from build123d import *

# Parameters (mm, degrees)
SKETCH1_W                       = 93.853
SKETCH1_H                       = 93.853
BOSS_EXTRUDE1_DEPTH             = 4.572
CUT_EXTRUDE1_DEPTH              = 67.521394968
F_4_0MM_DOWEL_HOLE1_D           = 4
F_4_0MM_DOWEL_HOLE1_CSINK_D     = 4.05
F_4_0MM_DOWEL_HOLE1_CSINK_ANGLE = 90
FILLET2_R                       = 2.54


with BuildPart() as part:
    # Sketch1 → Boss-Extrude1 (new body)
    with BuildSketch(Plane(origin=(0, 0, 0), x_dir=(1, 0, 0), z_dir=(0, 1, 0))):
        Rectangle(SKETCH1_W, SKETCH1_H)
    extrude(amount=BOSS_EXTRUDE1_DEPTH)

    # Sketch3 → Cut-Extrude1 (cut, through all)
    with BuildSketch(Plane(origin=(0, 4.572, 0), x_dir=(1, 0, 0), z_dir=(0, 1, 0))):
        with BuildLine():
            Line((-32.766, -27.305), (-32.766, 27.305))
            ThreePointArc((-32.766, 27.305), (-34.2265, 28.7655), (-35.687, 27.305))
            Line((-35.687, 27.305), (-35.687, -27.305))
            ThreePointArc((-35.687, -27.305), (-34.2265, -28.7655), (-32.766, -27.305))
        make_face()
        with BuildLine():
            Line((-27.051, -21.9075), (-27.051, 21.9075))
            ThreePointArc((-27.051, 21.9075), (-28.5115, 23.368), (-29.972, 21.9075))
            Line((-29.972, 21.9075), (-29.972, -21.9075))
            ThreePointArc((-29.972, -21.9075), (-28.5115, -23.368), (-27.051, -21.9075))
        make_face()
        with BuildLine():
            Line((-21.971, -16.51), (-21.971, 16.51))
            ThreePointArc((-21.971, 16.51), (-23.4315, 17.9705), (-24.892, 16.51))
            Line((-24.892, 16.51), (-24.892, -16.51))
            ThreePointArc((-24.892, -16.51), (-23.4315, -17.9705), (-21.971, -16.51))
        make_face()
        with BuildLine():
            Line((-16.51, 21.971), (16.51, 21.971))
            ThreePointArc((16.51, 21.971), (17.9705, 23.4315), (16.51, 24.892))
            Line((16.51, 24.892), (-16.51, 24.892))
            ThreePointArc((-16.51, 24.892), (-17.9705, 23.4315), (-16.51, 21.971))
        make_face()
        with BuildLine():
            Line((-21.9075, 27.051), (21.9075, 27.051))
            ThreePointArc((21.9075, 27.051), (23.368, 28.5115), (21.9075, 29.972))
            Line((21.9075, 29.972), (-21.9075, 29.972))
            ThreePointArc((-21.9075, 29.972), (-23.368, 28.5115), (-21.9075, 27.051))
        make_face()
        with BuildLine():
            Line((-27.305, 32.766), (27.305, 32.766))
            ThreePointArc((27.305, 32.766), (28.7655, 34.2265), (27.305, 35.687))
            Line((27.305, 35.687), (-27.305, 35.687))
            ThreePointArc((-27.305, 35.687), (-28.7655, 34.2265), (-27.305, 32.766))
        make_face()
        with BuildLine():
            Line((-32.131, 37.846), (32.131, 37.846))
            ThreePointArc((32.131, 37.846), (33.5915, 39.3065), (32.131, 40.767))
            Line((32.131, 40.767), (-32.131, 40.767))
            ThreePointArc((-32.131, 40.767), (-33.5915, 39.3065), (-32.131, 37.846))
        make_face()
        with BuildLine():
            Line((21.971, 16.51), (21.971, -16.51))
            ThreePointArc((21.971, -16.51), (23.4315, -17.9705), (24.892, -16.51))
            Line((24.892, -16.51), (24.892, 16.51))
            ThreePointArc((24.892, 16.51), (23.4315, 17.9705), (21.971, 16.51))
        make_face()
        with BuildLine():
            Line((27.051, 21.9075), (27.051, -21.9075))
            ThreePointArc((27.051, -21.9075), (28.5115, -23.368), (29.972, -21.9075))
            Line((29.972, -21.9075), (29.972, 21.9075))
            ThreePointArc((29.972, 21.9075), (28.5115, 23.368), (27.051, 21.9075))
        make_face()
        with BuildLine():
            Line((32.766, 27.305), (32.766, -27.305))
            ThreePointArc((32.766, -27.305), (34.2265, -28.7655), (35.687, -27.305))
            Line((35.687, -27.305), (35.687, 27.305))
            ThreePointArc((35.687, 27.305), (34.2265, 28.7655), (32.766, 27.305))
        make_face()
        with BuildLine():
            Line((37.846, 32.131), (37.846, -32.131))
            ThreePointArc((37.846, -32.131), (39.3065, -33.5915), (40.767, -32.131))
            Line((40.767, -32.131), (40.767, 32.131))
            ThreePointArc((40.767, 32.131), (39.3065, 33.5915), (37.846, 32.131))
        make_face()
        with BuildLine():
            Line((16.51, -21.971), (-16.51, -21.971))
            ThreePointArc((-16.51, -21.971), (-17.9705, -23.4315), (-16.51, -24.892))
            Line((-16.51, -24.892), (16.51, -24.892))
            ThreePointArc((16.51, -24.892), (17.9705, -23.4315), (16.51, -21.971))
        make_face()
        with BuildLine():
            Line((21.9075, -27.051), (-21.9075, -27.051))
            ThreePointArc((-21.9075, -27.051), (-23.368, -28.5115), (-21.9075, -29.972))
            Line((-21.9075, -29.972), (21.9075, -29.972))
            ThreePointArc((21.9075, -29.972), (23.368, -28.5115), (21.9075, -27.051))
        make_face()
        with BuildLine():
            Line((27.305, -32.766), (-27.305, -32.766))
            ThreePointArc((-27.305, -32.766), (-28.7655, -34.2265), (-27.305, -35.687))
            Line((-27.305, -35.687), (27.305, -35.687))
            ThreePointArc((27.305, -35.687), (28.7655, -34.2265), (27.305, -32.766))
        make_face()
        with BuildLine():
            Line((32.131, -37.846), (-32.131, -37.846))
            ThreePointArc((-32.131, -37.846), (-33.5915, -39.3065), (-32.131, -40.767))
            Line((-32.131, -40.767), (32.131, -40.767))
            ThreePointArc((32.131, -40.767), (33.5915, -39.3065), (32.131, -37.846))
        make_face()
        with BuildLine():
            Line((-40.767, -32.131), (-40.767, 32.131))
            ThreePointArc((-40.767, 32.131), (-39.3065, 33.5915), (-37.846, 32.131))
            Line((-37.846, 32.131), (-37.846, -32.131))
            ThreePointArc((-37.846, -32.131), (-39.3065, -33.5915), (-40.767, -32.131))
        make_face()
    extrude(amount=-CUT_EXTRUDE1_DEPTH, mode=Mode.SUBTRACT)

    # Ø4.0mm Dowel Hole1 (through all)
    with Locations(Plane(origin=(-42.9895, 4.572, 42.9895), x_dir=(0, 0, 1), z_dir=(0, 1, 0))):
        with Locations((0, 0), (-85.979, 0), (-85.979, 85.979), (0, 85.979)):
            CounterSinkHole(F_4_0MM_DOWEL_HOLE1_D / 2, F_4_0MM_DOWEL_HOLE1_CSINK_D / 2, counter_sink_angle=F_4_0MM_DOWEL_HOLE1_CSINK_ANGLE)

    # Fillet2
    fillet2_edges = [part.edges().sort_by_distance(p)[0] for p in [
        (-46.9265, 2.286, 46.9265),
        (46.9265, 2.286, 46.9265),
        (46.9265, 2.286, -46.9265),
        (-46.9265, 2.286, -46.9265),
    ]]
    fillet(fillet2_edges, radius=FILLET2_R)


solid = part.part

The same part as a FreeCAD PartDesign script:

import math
import FreeCAD as App
import Part
import Sketcher
from FreeCAD import Vector
Q = App.Units.Quantity


def edges_at(feature, points):
    """Names of the edges that pass closest to the given points."""
    edges = feature.Shape.Edges
    near = lambda p: min(range(len(edges)), key=lambda i: edges[i].distToShape(Part.Vertex(*p))[0])
    return sorted({f"Edge{near(p) + 1}" for p in points})


def add_polygon(sketch, points):
    """Adds a closed chain of lines whose ends are joined by coincident constraints."""
    first, n = sketch.GeometryCount, len(points)
    for a, b in zip(points, points[1:] + points[:1]):
        sketch.addGeometry(Part.LineSegment(App.Vector(*a, 0), App.Vector(*b, 0)), False)
    for i in range(n):
        sketch.addConstraint(Sketcher.Constraint("Coincident", first + i, 2, first + (i + 1) % n, 1))

doc = App.newDocument("Part")
body = doc.addObject("PartDesign::Body", "Body")

# Sketch on XZ plane
sketch1 = body.newObject("Sketcher::SketchObject", "Sketch")
sketch1.AttachmentSupport = (doc.getObject("XZ_Plane"), [""])
sketch1.MapMode = "FlatFace"
add_polygon(sketch1, [(-47, -47), (-47, 47), (47, 47), (47, -47)])  # lines 0-3
sketch1.addConstraint([
    Sketcher.Constraint("Vertical", 0),
    Sketcher.Constraint("Horizontal", 1),
    Sketcher.Constraint("Vertical", 2),
    Sketcher.Constraint("Horizontal", 3),
    Sketcher.Constraint("Symmetric", 0, 2, 2, 2, -1, 1),
    Sketcher.Constraint("Equal", 3, 0),
    Sketcher.Constraint("DistanceX", 1, 1, 1, 2, Q("3.695 in")),
])
pad1 = body.newObject("PartDesign::Pad", "Pad")
pad1.Profile = sketch1
pad1.Length = Q("0.18 in")
pad1.Reversed = True

# Sketch on XZ plane
sketch2 = body.newObject("Sketcher::SketchObject", "Sketch001")
sketch2.AttachmentSupport = (doc.getObject("XZ_Plane"), [""])
sketch2.MapMode = "FlatFace"
sketch2.AttachmentOffset = App.Placement(Vector(0, 0, -0.18 * 25.4), App.Rotation())
sketch2.addGeometry([
    Part.LineSegment(Vector(-32.8, 27.3, 0), Vector(-32.8, -27.3, 0)),  # 0
    Part.ArcOfCircle(Part.Circle(Vector(-34.2, -27.3, 0), Vector(0, 0, 1), 1.5), math.radians(180), math.radians(360)),  # 1
    Part.LineSegment(Vector(-35.7, -27.3, 0), Vector(-35.7, 27.3, 0)),  # 2
    Part.ArcOfCircle(Part.Circle(Vector(-34.2, 27.3, 0), Vector(0, 0, 1), 1.5), math.radians(0), math.radians(180)),  # 3
    Part.LineSegment(Vector(-27.1, 21.9, 0), Vector(-27.1, -21.9, 0)),  # 4
    Part.ArcOfCircle(Part.Circle(Vector(-28.5, -21.9, 0), Vector(0, 0, 1), 1.5), math.radians(180), math.radians(360)),  # 5
    Part.LineSegment(Vector(-30, -21.9, 0), Vector(-30, 21.9, 0)),  # 6
    Part.ArcOfCircle(Part.Circle(Vector(-28.5, 21.9, 0), Vector(0, 0, 1), 1.5), math.radians(0), math.radians(180)),  # 7
    Part.LineSegment(Vector(-22, 16.5, 0), Vector(-22, -16.5, 0)),  # 8
    Part.ArcOfCircle(Part.Circle(Vector(-23.4, -16.5, 0), Vector(0, 0, 1), 1.5), math.radians(180), math.radians(360)),  # 9
    Part.LineSegment(Vector(-24.9, -16.5, 0), Vector(-24.9, 16.5, 0)),  # 10
    Part.ArcOfCircle(Part.Circle(Vector(-23.4, 16.5, 0), Vector(0, 0, 1), 1.5), math.radians(0), math.radians(180)),  # 11
    Part.LineSegment(Vector(-16.5, -22, 0), Vector(16.5, -22, 0)),  # 12
    Part.ArcOfCircle(Part.Circle(Vector(16.5, -23.4, 0), Vector(0, 0, 1), 1.5), math.radians(-90), math.radians(90)),  # 13
    Part.LineSegment(Vector(16.5, -24.9, 0), Vector(-16.5, -24.9, 0)),  # 14
    Part.ArcOfCircle(Part.Circle(Vector(-16.5, -23.4, 0), Vector(0, 0, 1), 1.5), math.radians(90), math.radians(270)),  # 15
    Part.LineSegment(Vector(-21.9, -27.1, 0), Vector(21.9, -27.1, 0)),  # 16
    Part.ArcOfCircle(Part.Circle(Vector(21.9, -28.5, 0), Vector(0, 0, 1), 1.5), math.radians(-90), math.radians(90)),  # 17
    Part.LineSegment(Vector(21.9, -30, 0), Vector(-21.9, -30, 0)),  # 18
    Part.ArcOfCircle(Part.Circle(Vector(-21.9, -28.5, 0), Vector(0, 0, 1), 1.5), math.radians(90), math.radians(270)),  # 19
    Part.LineSegment(Vector(-27.3, -32.8, 0), Vector(27.3, -32.8, 0)),  # 20
    Part.ArcOfCircle(Part.Circle(Vector(27.3, -34.2, 0), Vector(0, 0, 1), 1.5), math.radians(-90), math.radians(90)),  # 21
    Part.LineSegment(Vector(27.3, -35.7, 0), Vector(-27.3, -35.7, 0)),  # 22
    Part.ArcOfCircle(Part.Circle(Vector(-27.3, -34.2, 0), Vector(0, 0, 1), 1.5), math.radians(90), math.radians(270)),  # 23
    Part.LineSegment(Vector(-32.1, -37.8, 0), Vector(32.1, -37.8, 0)),  # 24
    Part.ArcOfCircle(Part.Circle(Vector(32.1, -39.3, 0), Vector(0, 0, 1), 1.5), math.radians(-90), math.radians(90)),  # 25
    Part.LineSegment(Vector(32.1, -40.8, 0), Vector(-32.1, -40.8, 0)),  # 26
    Part.ArcOfCircle(Part.Circle(Vector(-32.1, -39.3, 0), Vector(0, 0, 1), 1.5), math.radians(90), math.radians(270)),  # 27
    Part.LineSegment(Vector(22, -16.5, 0), Vector(22, 16.5, 0)),  # 28
    Part.ArcOfCircle(Part.Circle(Vector(23.4, 16.5, 0), Vector(0, 0, 1), 1.5), math.radians(0), math.radians(180)),  # 29
    Part.LineSegment(Vector(24.9, 16.5, 0), Vector(24.9, -16.5, 0)),  # 30
    Part.ArcOfCircle(Part.Circle(Vector(23.4, -16.5, 0), Vector(0, 0, 1), 1.5), math.radians(180), math.radians(360)),  # 31
    Part.LineSegment(Vector(27.1, -21.9, 0), Vector(27.1, 21.9, 0)),  # 32
    Part.ArcOfCircle(Part.Circle(Vector(28.5, 21.9, 0), Vector(0, 0, 1), 1.5), math.radians(0), math.radians(180)),  # 33
    Part.LineSegment(Vector(30, 21.9, 0), Vector(30, -21.9, 0)),  # 34
    Part.ArcOfCircle(Part.Circle(Vector(28.5, -21.9, 0), Vector(0, 0, 1), 1.5), math.radians(180), math.radians(360)),  # 35
    Part.LineSegment(Vector(32.8, -27.3, 0), Vector(32.8, 27.3, 0)),  # 36
    Part.ArcOfCircle(Part.Circle(Vector(34.2, 27.3, 0), Vector(0, 0, 1), 1.5), math.radians(0), math.radians(180)),  # 37
    Part.LineSegment(Vector(35.7, 27.3, 0), Vector(35.7, -27.3, 0)),  # 38
    Part.ArcOfCircle(Part.Circle(Vector(34.2, -27.3, 0), Vector(0, 0, 1), 1.5), math.radians(180), math.radians(360)),  # 39
    Part.LineSegment(Vector(37.8, -32.1, 0), Vector(37.8, 32.1, 0)),  # 40
    Part.ArcOfCircle(Part.Circle(Vector(39.3, 32.1, 0), Vector(0, 0, 1), 1.5), math.radians(0), math.radians(180)),  # 41
    Part.LineSegment(Vector(40.8, 32.1, 0), Vector(40.8, -32.1, 0)),  # 42
    Part.ArcOfCircle(Part.Circle(Vector(39.3, -32.1, 0), Vector(0, 0, 1), 1.5), math.radians(180), math.radians(360)),  # 43
    Part.LineSegment(Vector(16.5, 22, 0), Vector(-16.5, 22, 0)),  # 44
    Part.ArcOfCircle(Part.Circle(Vector(-16.5, 23.4, 0), Vector(0, 0, 1), 1.5), math.radians(90), math.radians(270)),  # 45
    Part.LineSegment(Vector(-16.5, 24.9, 0), Vector(16.5, 24.9, 0)),  # 46
    Part.ArcOfCircle(Part.Circle(Vector(16.5, 23.4, 0), Vector(0, 0, 1), 1.5), math.radians(-90), math.radians(90)),  # 47
    Part.LineSegment(Vector(21.9, 27.1, 0), Vector(-21.9, 27.1, 0)),  # 48
    Part.ArcOfCircle(Part.Circle(Vector(-21.9, 28.5, 0), Vector(0, 0, 1), 1.5), math.radians(90), math.radians(270)),  # 49
    Part.LineSegment(Vector(-21.9, 30, 0), Vector(21.9, 30, 0)),  # 50
    Part.ArcOfCircle(Part.Circle(Vector(21.9, 28.5, 0), Vector(0, 0, 1), 1.5), math.radians(-90), math.radians(90)),  # 51
    Part.LineSegment(Vector(27.3, 32.8, 0), Vector(-27.3, 32.8, 0)),  # 52
    Part.ArcOfCircle(Part.Circle(Vector(-27.3, 34.2, 0), Vector(0, 0, 1), 1.5), math.radians(90), math.radians(270)),  # 53
    Part.LineSegment(Vector(-27.3, 35.7, 0), Vector(27.3, 35.7, 0)),  # 54
    Part.ArcOfCircle(Part.Circle(Vector(27.3, 34.2, 0), Vector(0, 0, 1), 1.5), math.radians(-90), math.radians(90)),  # 55
    Part.LineSegment(Vector(32.1, 37.8, 0), Vector(-32.1, 37.8, 0)),  # 56
    Part.ArcOfCircle(Part.Circle(Vector(-32.1, 39.3, 0), Vector(0, 0, 1), 1.5), math.radians(90), math.radians(270)),  # 57
    Part.LineSegment(Vector(-32.1, 40.8, 0), Vector(32.1, 40.8, 0)),  # 58
    Part.ArcOfCircle(Part.Circle(Vector(32.1, 39.3, 0), Vector(0, 0, 1), 1.5), math.radians(-90), math.radians(90)),  # 59
    Part.LineSegment(Vector(-40.8, -32.1, 0), Vector(-40.8, 32.1, 0)),  # 60
    Part.ArcOfCircle(Part.Circle(Vector(-39.3, 32.1, 0), Vector(0, 0, 1), 1.5), math.radians(0), math.radians(180)),  # 61
    Part.LineSegment(Vector(-37.8, 32.1, 0), Vector(-37.8, -32.1, 0)),  # 62
    Part.ArcOfCircle(Part.Circle(Vector(-39.3, -32.1, 0), Vector(0, 0, 1), 1.5), math.radians(180), math.radians(360)),  # 63
], False)
sketch2.addConstraint([
    Sketcher.Constraint("Tangent", 0, 2, 1, 2),
    Sketcher.Constraint("Tangent", 1, 1, 2, 1),
    Sketcher.Constraint("Tangent", 2, 2, 3, 2),
    Sketcher.Constraint("Tangent", 3, 1, 0, 1),
    Sketcher.Constraint("Tangent", 4, 2, 5, 2),
    Sketcher.Constraint("Tangent", 5, 1, 6, 1),
    Sketcher.Constraint("Tangent", 6, 2, 7, 2),
    Sketcher.Constraint("Tangent", 7, 1, 4, 1),
    Sketcher.Constraint("Tangent", 8, 2, 9, 2),
    Sketcher.Constraint("Tangent", 9, 1, 10, 1),
    Sketcher.Constraint("Tangent", 10, 2, 11, 2),
    Sketcher.Constraint("Tangent", 11, 1, 8, 1),
    Sketcher.Constraint("Tangent", 12, 2, 13, 2),
    Sketcher.Constraint("Tangent", 13, 1, 14, 1),
    Sketcher.Constraint("Tangent", 14, 2, 15, 2),
    Sketcher.Constraint("Tangent", 15, 1, 12, 1),
    Sketcher.Constraint("Tangent", 16, 2, 17, 2),
    Sketcher.Constraint("Tangent", 17, 1, 18, 1),
    Sketcher.Constraint("Tangent", 18, 2, 19, 2),
    Sketcher.Constraint("Tangent", 19, 1, 16, 1),
    Sketcher.Constraint("Tangent", 20, 2, 21, 2),
    Sketcher.Constraint("Tangent", 21, 1, 22, 1),
    Sketcher.Constraint("Tangent", 22, 2, 23, 2),
    Sketcher.Constraint("Tangent", 23, 1, 20, 1),
    Sketcher.Constraint("Tangent", 24, 2, 25, 2),
    Sketcher.Constraint("Tangent", 25, 1, 26, 1),
    Sketcher.Constraint("Tangent", 26, 2, 27, 2),
    Sketcher.Constraint("Tangent", 27, 1, 24, 1),
    Sketcher.Constraint("Tangent", 28, 2, 29, 2),
    Sketcher.Constraint("Tangent", 29, 1, 30, 1),
    Sketcher.Constraint("Tangent", 30, 2, 31, 2),
    Sketcher.Constraint("Tangent", 31, 1, 28, 1),
    Sketcher.Constraint("Tangent", 32, 2, 33, 2),
    Sketcher.Constraint("Tangent", 33, 1, 34, 1),
    Sketcher.Constraint("Tangent", 34, 2, 35, 2),
    Sketcher.Constraint("Tangent", 35, 1, 32, 1),
    Sketcher.Constraint("Tangent", 36, 2, 37, 2),
    Sketcher.Constraint("Tangent", 37, 1, 38, 1),
    Sketcher.Constraint("Tangent", 38, 2, 39, 2),
    Sketcher.Constraint("Tangent", 39, 1, 36, 1),
    Sketcher.Constraint("Tangent", 40, 2, 41, 2),
    Sketcher.Constraint("Tangent", 41, 1, 42, 1),
    Sketcher.Constraint("Tangent", 42, 2, 43, 2),
    Sketcher.Constraint("Tangent", 43, 1, 40, 1),
    Sketcher.Constraint("Tangent", 44, 2, 45, 2),
    Sketcher.Constraint("Tangent", 45, 1, 46, 1),
    Sketcher.Constraint("Tangent", 46, 2, 47, 2),
    Sketcher.Constraint("Tangent", 47, 1, 44, 1),
    Sketcher.Constraint("Tangent", 48, 2, 49, 2),
    Sketcher.Constraint("Tangent", 49, 1, 50, 1),
    Sketcher.Constraint("Tangent", 50, 2, 51, 2),
    Sketcher.Constraint("Tangent", 51, 1, 48, 1),
    Sketcher.Constraint("Tangent", 52, 2, 53, 2),
    Sketcher.Constraint("Tangent", 53, 1, 54, 1),
    Sketcher.Constraint("Tangent", 54, 2, 55, 2),
    Sketcher.Constraint("Tangent", 55, 1, 52, 1),
    Sketcher.Constraint("Tangent", 56, 2, 57, 2),
    Sketcher.Constraint("Tangent", 57, 1, 58, 1),
    Sketcher.Constraint("Tangent", 58, 2, 59, 2),
    Sketcher.Constraint("Tangent", 59, 1, 56, 1),
    Sketcher.Constraint("Tangent", 60, 2, 61, 2),
    Sketcher.Constraint("Tangent", 61, 1, 62, 1),
    Sketcher.Constraint("Tangent", 62, 2, 63, 2),
    Sketcher.Constraint("Tangent", 63, 1, 60, 1),
    Sketcher.Constraint("Vertical", 0),
    Sketcher.Constraint("Vertical", 2),
    Sketcher.Constraint("Vertical", 4),
    Sketcher.Constraint("Vertical", 6),
    Sketcher.Constraint("Vertical", 8),
    Sketcher.Constraint("Vertical", 10),
    Sketcher.Constraint("Horizontal", 12),
    Sketcher.Constraint("Horizontal", 14),
    Sketcher.Constraint("Horizontal", 16),
    Sketcher.Constraint("Horizontal", 18),
    Sketcher.Constraint("Horizontal", 20),
    Sketcher.Constraint("Horizontal", 22),
    Sketcher.Constraint("Horizontal", 24),
    Sketcher.Constraint("Horizontal", 26),
    Sketcher.Constraint("Vertical", 28),
    Sketcher.Constraint("Vertical", 30),
    Sketcher.Constraint("Vertical", 32),
    Sketcher.Constraint("Vertical", 34),
    Sketcher.Constraint("Vertical", 36),
    Sketcher.Constraint("Vertical", 38),
    Sketcher.Constraint("Vertical", 40),
    Sketcher.Constraint("Vertical", 42),
    Sketcher.Constraint("Horizontal", 44),
    Sketcher.Constraint("Horizontal", 46),
    Sketcher.Constraint("Horizontal", 48),
    Sketcher.Constraint("Horizontal", 50),
    Sketcher.Constraint("Horizontal", 52),
    Sketcher.Constraint("Horizontal", 54),
    Sketcher.Constraint("Horizontal", 56),
    Sketcher.Constraint("Horizontal", 58),
    Sketcher.Constraint("Vertical", 60),
    Sketcher.Constraint("Vertical", 62),
    Sketcher.Constraint("Equal", 3, 5),
    Sketcher.Constraint("Equal", 7, 9),
    Sketcher.Constraint("Equal", 11, 13),
    Sketcher.Constraint("Equal", 15, 17),
    Sketcher.Constraint("Equal", 19, 21),
    Sketcher.Constraint("Equal", 23, 25),
    Sketcher.Constraint("Equal", 27, 29),
    Sketcher.Constraint("Equal", 31, 33),
    Sketcher.Constraint("Equal", 35, 37),
    Sketcher.Constraint("Equal", 39, 41),
    Sketcher.Constraint("Equal", 43, 45),
    Sketcher.Constraint("Equal", 47, 49),
    Sketcher.Constraint("Equal", 51, 53),
    Sketcher.Constraint("Equal", 55, 57),
    Sketcher.Constraint("Equal", 59, 61),
    Sketcher.Constraint("Symmetric", 9, 3, 29, 3, -1, 1),
    Sketcher.Constraint("Symmetric", 5, 3, 33, 3, -1, 1),
    Sketcher.Constraint("Symmetric", 1, 3, 37, 3, -1, 1),
    Sketcher.Constraint("Symmetric", 13, 3, 45, 3, -1, 1),
    Sketcher.Constraint("Symmetric", 17, 3, 49, 3, -1, 1),
    Sketcher.Constraint("Symmetric", 21, 3, 53, 3, -1, 1),
    Sketcher.Constraint("Symmetric", 25, 3, 57, 3, -1, 1),
    Sketcher.Constraint("Symmetric", 43, 3, 61, 3, -1, 1),
    Sketcher.Constraint("Horizontal", 11, 3, 29, 3),
    Sketcher.Constraint("Horizontal", 9, 3, 31, 3),
    Sketcher.Constraint("Horizontal", 7, 3, 33, 3),
    Sketcher.Constraint("Horizontal", 5, 3, 35, 3),
    Sketcher.Constraint("Horizontal", 3, 3, 37, 3),
    Sketcher.Constraint("Horizontal", 1, 3, 39, 3),
    Sketcher.Constraint("Horizontal", 41, 3, 61, 3),
    Sketcher.Constraint("Horizontal", 43, 3, 63, 3),
    Sketcher.Constraint("Vertical", 15, 3, 45, 3),
    Sketcher.Constraint("Vertical", 13, 3, 47, 3),
    Sketcher.Constraint("Vertical", 19, 3, 49, 3),
    Sketcher.Constraint("Vertical", 17, 3, 51, 3),
    Sketcher.Constraint("Vertical", 23, 3, 53, 3),
    Sketcher.Constraint("Vertical", 21, 3, 55, 3),
    Sketcher.Constraint("Vertical", 27, 3, 57, 3),
    Sketcher.Constraint("Vertical", 25, 3, 59, 3),
    Sketcher.Constraint("Equal", 54, 0),
    Sketcher.Constraint("Equal", 50, 4),
    Sketcher.Constraint("Equal", 46, 8),
    Sketcher.Constraint("Equal", 58, 40),
    Sketcher.Constraint("DistanceX", 12, 1, 12, 2, Q("1.3 in")),
    Sketcher.Constraint("DistanceX", 20, 1, 20, 2, Q("2.15 in")),
    Sketcher.Constraint("DistanceX", 24, 1, 24, 2, Q("2.53 in")),
    Sketcher.Constraint("Radius", 1, Q("0.0575 in")),
    Sketcher.Constraint("DistanceX", 16, 1, 16, 2, Q("1.725 in")),
    Sketcher.Constraint("DistanceX", 0, 2, -1, 1, Q("1.29 in")),
    Sketcher.Constraint("DistanceX", 5, 1, -1, 1, Q("1.18 in")),
    Sketcher.Constraint("DistanceX", 9, 1, -1, 1, Q("0.98 in")),
    Sketcher.Constraint("DistanceY", 13, 1, -1, 1, Q("0.98 in")),
    Sketcher.Constraint("DistanceY", 17, 1, -1, 1, Q("1.18 in")),
    Sketcher.Constraint("DistanceY", 20, 2, -1, 1, Q("1.29 in")),
    Sketcher.Constraint("DistanceY", 24, 2, -1, 1, Q("1.49 in")),
    Sketcher.Constraint("DistanceX", -1, 1, 40, 2, Q("1.49 in")),
])
pocket1 = body.newObject("PartDesign::Pocket", "Pocket")
pocket1.Profile = sketch2
pocket1.Type = "ThroughAll"
pocket1.Reversed = True

# Sketch on XZ plane
sketch3 = body.newObject("Sketcher::SketchObject", "Sketch002")
sketch3.AttachmentSupport = (doc.getObject("XZ_Plane"), [""])
sketch3.MapMode = "FlatFace"
sketch3.AttachmentOffset = App.Placement(Vector(0, 0, -0.18 * 25.4), App.Rotation())
sketch3.addGeometry([
    Part.Circle(Vector(-43, 43, 0), Vector(0, 0, 1), 2),
    Part.Circle(Vector(-43, -43, 0), Vector(0, 0, 1), 2),
    Part.Circle(Vector(43, -43, 0), Vector(0, 0, 1), 2),
    Part.Circle(Vector(43, 43, 0), Vector(0, 0, 1), 2),
], False)
sketch3.addConstraint([
    Sketcher.Constraint("Equal", 0, 1),
    Sketcher.Constraint("Equal", 1, 2),
    Sketcher.Constraint("Equal", 2, 3),
    Sketcher.Constraint("Symmetric", 0, 3, 2, 3, -1, 1),
    Sketcher.Constraint("Symmetric", 1, 3, 3, 3, -1, 1),
    Sketcher.Constraint("Symmetric", 1, 3, 2, 3, -2),
    Sketcher.Constraint("Diameter", 0, 4.0),
    Sketcher.Constraint("DistanceY", 1, 3, 0, 3, Q("3.385 in")),
    Sketcher.Constraint("DistanceX", 1, 3, 2, 3, Q("3.385 in")),
])
doc.recompute()
hole = body.newObject("PartDesign::Hole", "Hole")
hole.Profile = sketch3
hole.ThreadType = "None"
hole.Diameter = 4
hole.DepthType = "ThroughAll"
hole.HoleCutType = "Countersink"
hole.HoleCutDiameter = 4.05
hole.HoleCutCountersinkAngle = 90
hole.Reversed = True
doc.recompute()

fillet = body.newObject("PartDesign::Fillet", "Fillet")
fillet.Base = (hole, edges_at(hole, [
    (-46.926, 2.286, 46.926),
    (46.926, 2.286, 46.926),
    (46.926, 2.286, -46.926),
    (-46.926, 2.286, -46.926),
]))
fillet.Radius = Q("0.1 in")

doc.recompute()
